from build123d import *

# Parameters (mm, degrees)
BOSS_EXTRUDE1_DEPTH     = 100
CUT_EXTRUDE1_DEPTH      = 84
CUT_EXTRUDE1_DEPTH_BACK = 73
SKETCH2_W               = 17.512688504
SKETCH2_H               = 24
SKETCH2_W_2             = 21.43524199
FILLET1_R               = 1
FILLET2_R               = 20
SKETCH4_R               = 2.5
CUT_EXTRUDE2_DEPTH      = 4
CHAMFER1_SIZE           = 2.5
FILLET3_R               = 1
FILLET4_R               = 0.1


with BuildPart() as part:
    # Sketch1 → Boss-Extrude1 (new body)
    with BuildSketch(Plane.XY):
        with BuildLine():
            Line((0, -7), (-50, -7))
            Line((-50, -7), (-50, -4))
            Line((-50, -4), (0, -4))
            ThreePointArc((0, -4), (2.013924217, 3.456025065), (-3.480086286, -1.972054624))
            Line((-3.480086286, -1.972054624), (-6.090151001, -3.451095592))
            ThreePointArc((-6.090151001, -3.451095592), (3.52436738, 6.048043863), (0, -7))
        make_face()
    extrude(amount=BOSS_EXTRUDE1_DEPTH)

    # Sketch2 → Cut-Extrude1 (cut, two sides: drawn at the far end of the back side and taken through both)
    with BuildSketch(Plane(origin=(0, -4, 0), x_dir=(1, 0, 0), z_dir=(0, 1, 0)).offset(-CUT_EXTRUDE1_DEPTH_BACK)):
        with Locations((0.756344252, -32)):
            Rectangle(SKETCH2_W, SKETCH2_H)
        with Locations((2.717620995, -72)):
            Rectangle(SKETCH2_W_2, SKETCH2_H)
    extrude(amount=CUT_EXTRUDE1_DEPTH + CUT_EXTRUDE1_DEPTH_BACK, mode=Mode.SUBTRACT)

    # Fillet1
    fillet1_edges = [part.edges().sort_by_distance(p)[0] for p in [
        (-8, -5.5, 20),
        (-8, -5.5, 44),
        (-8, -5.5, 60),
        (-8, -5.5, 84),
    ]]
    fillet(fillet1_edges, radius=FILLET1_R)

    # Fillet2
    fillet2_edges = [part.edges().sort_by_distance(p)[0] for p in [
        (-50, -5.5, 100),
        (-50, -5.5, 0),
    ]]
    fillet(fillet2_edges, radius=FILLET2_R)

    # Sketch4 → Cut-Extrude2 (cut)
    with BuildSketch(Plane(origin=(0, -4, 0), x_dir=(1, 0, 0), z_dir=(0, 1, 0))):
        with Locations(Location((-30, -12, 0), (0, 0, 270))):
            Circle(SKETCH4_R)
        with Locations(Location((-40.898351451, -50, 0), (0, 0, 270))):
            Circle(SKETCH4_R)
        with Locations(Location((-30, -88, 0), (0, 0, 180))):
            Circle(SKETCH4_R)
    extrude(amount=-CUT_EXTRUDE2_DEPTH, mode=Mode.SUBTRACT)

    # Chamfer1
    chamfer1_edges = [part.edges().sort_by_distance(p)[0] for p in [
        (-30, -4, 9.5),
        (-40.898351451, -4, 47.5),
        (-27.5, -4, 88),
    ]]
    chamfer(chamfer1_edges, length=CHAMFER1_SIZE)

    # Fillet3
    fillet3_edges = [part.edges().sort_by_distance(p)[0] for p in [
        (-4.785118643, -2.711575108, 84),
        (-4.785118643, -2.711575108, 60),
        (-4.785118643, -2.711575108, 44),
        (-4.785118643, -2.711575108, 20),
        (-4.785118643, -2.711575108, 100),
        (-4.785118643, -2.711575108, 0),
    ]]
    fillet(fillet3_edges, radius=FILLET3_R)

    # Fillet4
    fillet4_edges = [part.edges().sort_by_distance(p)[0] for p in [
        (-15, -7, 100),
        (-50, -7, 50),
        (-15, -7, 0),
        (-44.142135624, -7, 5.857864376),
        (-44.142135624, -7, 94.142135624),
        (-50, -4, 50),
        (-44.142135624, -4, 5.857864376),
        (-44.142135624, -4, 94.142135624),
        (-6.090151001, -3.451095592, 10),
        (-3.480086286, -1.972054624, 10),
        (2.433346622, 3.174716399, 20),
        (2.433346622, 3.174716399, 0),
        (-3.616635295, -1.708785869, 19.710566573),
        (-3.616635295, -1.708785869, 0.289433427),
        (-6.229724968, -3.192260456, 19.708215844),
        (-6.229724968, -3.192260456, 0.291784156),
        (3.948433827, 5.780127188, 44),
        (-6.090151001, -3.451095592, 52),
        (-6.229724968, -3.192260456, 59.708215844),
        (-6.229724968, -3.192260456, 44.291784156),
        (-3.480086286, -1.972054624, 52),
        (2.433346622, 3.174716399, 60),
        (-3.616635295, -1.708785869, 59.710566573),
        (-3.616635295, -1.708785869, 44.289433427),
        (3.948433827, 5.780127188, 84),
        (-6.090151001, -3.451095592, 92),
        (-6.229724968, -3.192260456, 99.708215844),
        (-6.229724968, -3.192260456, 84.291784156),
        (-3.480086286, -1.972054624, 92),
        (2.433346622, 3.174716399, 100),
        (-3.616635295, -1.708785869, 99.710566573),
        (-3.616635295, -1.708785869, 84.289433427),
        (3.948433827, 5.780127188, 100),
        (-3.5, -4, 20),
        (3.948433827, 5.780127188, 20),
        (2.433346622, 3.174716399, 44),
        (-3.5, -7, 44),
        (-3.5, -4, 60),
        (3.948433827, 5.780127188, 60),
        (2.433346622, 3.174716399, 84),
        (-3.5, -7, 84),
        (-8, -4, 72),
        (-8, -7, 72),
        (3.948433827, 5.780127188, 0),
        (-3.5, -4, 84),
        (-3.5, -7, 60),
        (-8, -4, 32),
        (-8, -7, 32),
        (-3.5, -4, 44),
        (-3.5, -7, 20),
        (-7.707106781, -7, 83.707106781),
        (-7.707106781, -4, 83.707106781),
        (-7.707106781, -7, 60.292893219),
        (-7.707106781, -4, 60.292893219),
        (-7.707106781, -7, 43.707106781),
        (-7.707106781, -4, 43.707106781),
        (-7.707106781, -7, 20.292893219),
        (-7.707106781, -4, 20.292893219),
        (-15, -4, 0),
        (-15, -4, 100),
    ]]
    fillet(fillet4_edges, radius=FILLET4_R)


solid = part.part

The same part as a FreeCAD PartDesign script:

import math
import FreeCAD as App
import Part
import Sketcher
Q = App.Units.Quantity


def edges_at(feature, points):
    """Names of the edges that pass closest to the given points."""
    edges = feature.Shape.Edges
    near = lambda p: min(range(len(edges)), key=lambda i: edges[i].distToShape(Part.Vertex(*p))[0])
    return sorted({f"Edge{near(p) + 1}" for p in points})


def add_polygon(sketch, points):
    """Adds a closed chain of lines whose ends are joined by coincident constraints."""
    first, n = sketch.GeometryCount, len(points)
    for a, b in zip(points, points[1:] + points[:1]):
        sketch.addGeometry(Part.LineSegment(App.Vector(*a, 0), App.Vector(*b, 0)), False)
    for i in range(n):
        sketch.addConstraint(Sketcher.Constraint("Coincident", first + i, 2, first + (i + 1) % n, 1))

doc = App.newDocument("Part")
body = doc.addObject("PartDesign::Body", "Body")

sketch1 = body.newObject("Sketcher::SketchObject", "Sketch")
sketch1.AttachmentSupport = (doc.getObject("XY_Plane"), [""])
sketch1.MapMode = "FlatFace"
sketch1.addGeometry([
    Part.LineSegment(App.Vector(-50, -7, 0), App.Vector(0, -7, 0)),
    Part.ArcOfCircle(Part.Circle(App.Vector(0, 0, 0), App.Vector(0, 0, 1), 7), math.radians(-90), math.radians(210)),
    Part.LineSegment(App.Vector(-6.1, -3.5, 0), App.Vector(-3.5, -2, 0)),
    Part.ArcOfCircle(Part.Circle(App.Vector(0, 0, 0), App.Vector(0, 0, 1), 4), math.radians(-90), math.radians(210)),
    Part.LineSegment(App.Vector(0, -4, 0), App.Vector(-50, -4, 0)),
    Part.LineSegment(App.Vector(-50, -4, 0), App.Vector(-50, -7, 0)),
], False)
sketch1.addConstraint([
    Sketcher.Constraint("Tangent", 0, 2, 1, 1),
    Sketcher.Constraint("Coincident", 1, 2, 2, 1),
    Sketcher.Constraint("Coincident", 2, 2, 3, 2),
    Sketcher.Constraint("Tangent", 3, 1, 4, 1),
    Sketcher.Constraint("Coincident", 4, 2, 5, 1),
    Sketcher.Constraint("Coincident", 5, 2, 0, 1),
    Sketcher.Constraint("Horizontal", 0),
    Sketcher.Constraint("Horizontal", 4),
    Sketcher.Constraint("Vertical", 5),
    Sketcher.Constraint("Coincident", 1, 3, -1, 1),
    Sketcher.Constraint("Coincident", 3, 3, -1, 1),
    Sketcher.Constraint("Radius", 1, Q("7 mm")),
    Sketcher.Constraint("Radius", 3, Q("4 mm")),
    Sketcher.Constraint("DistanceX", 0, 1, 0, 2, Q("50 mm")),
    Sketcher.Constraint("DistanceX", 1, 2, -1, 1, Q("6.090151 mm")),
    Sketcher.Constraint("DistanceY", 1, 2, 2, 2, Q("1.479041 mm")),
])
pad1 = body.newObject("PartDesign::Pad", "Pad")
pad1.Profile = sketch1
pad1.Length = 100

sketch2 = body.newObject("Sketcher::SketchObject", "Sketch001")
sketch2.AttachmentSupport = (doc.getObject("XZ_Plane"), [""])
sketch2.MapMode = "FlatFace"
sketch2.AttachmentOffset = App.Placement(App.Vector(0, 0, 4), App.Rotation())
add_polygon(sketch2, [(-8, 20), (-8, 44), (10, 44), (10, 20)])
add_polygon(sketch2, [(-8, 60), (-8, 84), (13, 84), (13, 60)])
sketch2.addConstraint([
    Sketcher.Constraint("Vertical", 0),
    Sketcher.Constraint("Horizontal", 1),
    Sketcher.Constraint("Vertical", 2),
    Sketcher.Constraint("Horizontal", 3),
    Sketcher.Constraint("Vertical", 4),
    Sketcher.Constraint("Horizontal", 5),
    Sketcher.Constraint("Vertical", 6),
    Sketcher.Constraint("Horizontal", 7),
    Sketcher.Constraint("Vertical", 3, 2, 4, 2),
    Sketcher.Constraint("Equal", 2, 4),
    Sketcher.Constraint("DistanceY", 0, 1, 0, 2, Q("24 mm")),
    Sketcher.Constraint("DistanceX", 0, 2, -1, 1, Q("8 mm")),
    Sketcher.Constraint("DistanceY", -1, 1, 0, 2, Q("44 mm")),
    Sketcher.Constraint("DistanceY", -1, 1, 4, 2, Q("84 mm")),
    Sketcher.Constraint("DistanceX", 1, 1, 1, 2, Q("17.512689 mm")),
    Sketcher.Constraint("DistanceX", 5, 1, 5, 2, Q("21.435242 mm")),
])
pocket1 = body.newObject("PartDesign::Pocket", "Pocket")
pocket1.Profile = sketch2
pocket1.Type = "ThroughAll"
pocket1.Midplane = True
doc.recompute()

fillet = body.newObject("PartDesign::Fillet", "Fillet")
fillet.Base = (pocket1, edges_at(pocket1, [
    (-8, -5.5, 20),
    (-8, -5.5, 44),
    (-8, -5.5, 60),
    (-8, -5.5, 84),
]))
fillet.Radius = 1
doc.recompute()

fillet2 = body.newObject("PartDesign::Fillet", "Fillet001")
fillet2.Base = (fillet, edges_at(fillet, [(-50, -5.5, 100), (-50, -5.5, 0)]))
fillet2.Radius = 20

sketch3 = body.newObject("Sketcher::SketchObject", "Sketch002")
sketch3.AttachmentSupport = (doc.getObject("XZ_Plane"), [""])
sketch3.MapMode = "FlatFace"
sketch3.AttachmentOffset = App.Placement(App.Vector(0, 0, 4), App.Rotation())
sketch3.addGeometry([
    Part.Circle(App.Vector(-30, 12, 0), App.Vector(0, 0, 1), 2.5),
    Part.Circle(App.Vector(-40.9, 50, 0), App.Vector(0, 0, 1), 2.5),
    Part.Circle(App.Vector(-30, 88, 0), App.Vector(0, 0, 1), 2.5),
], False)
sketch3.addConstraint([
    Sketcher.Constraint("Equal", 0, 1),
    Sketcher.Constraint("Equal", 1, 2),
    Sketcher.Constraint("Vertical", 0, 3, 2, 3),
    Sketcher.Constraint("Diameter", 0, Q("5 mm")),
    Sketcher.Constraint("DistanceX", 0, 3, -1, 1, Q("30 mm")),
    Sketcher.Constraint("DistanceY", -1, 1, 0, 3, Q("12 mm")),
    Sketcher.Constraint("DistanceY", -1, 1, 1, 3, Q("50 mm")),
    Sketcher.Constraint("DistanceY", -1, 1, 2, 3, Q("88 mm")),
    Sketcher.Constraint("DistanceX", 1, 3, -1, 1, Q("40.898351 mm")),
])
pocket2 = body.newObject("PartDesign::Pocket", "Pocket001")
pocket2.Profile = sketch3
pocket2.Length = 4
pocket2.Reversed = True
doc.recompute()

chamfer = body.newObject("PartDesign::Chamfer", "Chamfer")
chamfer.Base = (pocket2, edges_at(pocket2, [(-30, -4, 9.5), (-40.898, -4, 47.5), (-27.5, -4, 88)]))
chamfer.Size = 2.5
doc.recompute()

fillet3 = body.newObject("PartDesign::Fillet", "Fillet002")
fillet3.Base = (chamfer, edges_at(chamfer, [
    (-4.785, -2.712, 84),
    (-4.785, -2.712, 60),
    (-4.785, -2.712, 44),
    (-4.785, -2.712, 20),
    (-4.785, -2.712, 100),
    (-4.785, -2.712, 0),
]))
fillet3.Radius = 1
doc.recompute()

fillet4 = body.newObject("PartDesign::Fillet", "Fillet003")
fillet4.Base = (fillet3, edges_at(fillet3, [
    (-15, -7, 100),
    (-50, -7, 50),
    (-15, -7, 0),
    (-44.142, -7, 5.858),
    (-44.142, -7, 94.142),
    (-50, -4, 50),
    (-44.142, -4, 5.858),
    (-44.142, -4, 94.142),
    (-6.09, -3.451, 10),
    (-3.48, -1.972, 10),
    (2.433, 3.175, 20),
    (2.433, 3.175, 0),
    (-3.617, -1.709, 19.711),
    (-3.617, -1.709, 0.289),
    (-6.23, -3.192, 19.708),
    (-6.23, -3.192, 0.292),
    (3.948, 5.78, 44),
    (-6.09, -3.451, 52),
    (-6.23, -3.192, 59.708),
    (-6.23, -3.192, 44.292),
    (-3.48, -1.972, 52),
    (2.433, 3.175, 60),
    (-3.617, -1.709, 59.711),
    (-3.617, -1.709, 44.289),
    (3.948, 5.78, 84),
    (-6.09, -3.451, 92),
    (-6.23, -3.192, 99.708),
    (-6.23, -3.192, 84.292),
    (-3.48, -1.972, 92),
    (2.433, 3.175, 100),
    (-3.617, -1.709, 99.711),
    (-3.617, -1.709, 84.289),
    (3.948, 5.78, 100),
    (-3.5, -4, 20),
    (3.948, 5.78, 20),
    (2.433, 3.175, 44),
    (-3.5, -7, 44),
    (-3.5, -4, 60),
    (3.948, 5.78, 60),
    (2.433, 3.175, 84),
    (-3.5, -7, 84),
    (-8, -4, 72),
    (-8, -7, 72),
    (3.948, 5.78, 0),
    (-3.5, -4, 84),
    (-3.5, -7, 60),
    (-8, -4, 32),
    (-8, -7, 32),
    (-3.5, -4, 44),
    (-3.5, -7, 20),
    (-7.707, -7, 83.707),
    (-7.707, -4, 83.707),
    (-7.707, -7, 60.293),
    (-7.707, -4, 60.293),
    (-7.707, -7, 43.707),
    (-7.707, -4, 43.707),
    (-7.707, -7, 20.293),
    (-7.707, -4, 20.293),
    (-15, -4, 0),
    (-15, -4, 100),
]))
fillet4.Radius = 0.1

doc.recompute()
